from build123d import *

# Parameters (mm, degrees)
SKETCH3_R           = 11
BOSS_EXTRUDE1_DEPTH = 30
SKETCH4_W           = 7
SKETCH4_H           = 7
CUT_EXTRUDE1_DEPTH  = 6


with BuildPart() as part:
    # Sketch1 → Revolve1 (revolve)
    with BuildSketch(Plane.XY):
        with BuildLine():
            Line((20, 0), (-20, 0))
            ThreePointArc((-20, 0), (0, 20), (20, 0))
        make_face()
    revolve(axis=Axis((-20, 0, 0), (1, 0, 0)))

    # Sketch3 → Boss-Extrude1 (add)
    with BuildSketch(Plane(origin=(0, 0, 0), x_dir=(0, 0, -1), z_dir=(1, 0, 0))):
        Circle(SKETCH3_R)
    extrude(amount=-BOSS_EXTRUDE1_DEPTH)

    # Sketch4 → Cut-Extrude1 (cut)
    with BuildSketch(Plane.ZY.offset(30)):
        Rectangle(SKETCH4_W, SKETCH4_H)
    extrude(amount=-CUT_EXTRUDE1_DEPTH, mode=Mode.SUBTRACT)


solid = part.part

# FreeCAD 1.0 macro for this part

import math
import FreeCAD as App
import Part
import Sketcher

V = App.Vector


def add_polygon(sketch, points):
    """Adds a closed chain of lines whose ends are joined by coincident constraints."""
    first, n = sketch.GeometryCount, len(points)
    for a, b in zip(points, points[1:] + points[:1]):
        sketch.addGeometry(Part.LineSegment(App.Vector(*a, 0), App.Vector(*b, 0)), False)
    for i in range(n):
        sketch.addConstraint(Sketcher.Constraint("Coincident", first + i, 2, first + (i + 1) % n, 1))

doc = App.newDocument("Part")
params = doc.addObject("Spreadsheet::Sheet", "Params")
for row, (alias, value) in enumerate([
    ("sketch1_radius", "20 mm"),
    ("revolution_angle", "360 deg"),
    ("sketch2_diameter", "22 mm"),
    ("pad1_length", "30 mm"),
    ("sketch3_width", "7 mm"),
    ("pocket1_length", "6 mm"),
], start=1):
    params.set(f"A{row}", alias)
    params.set(f"B{row}", "=" + value)
    params.setAlias(f"B{row}", alias)

body = doc.addObject("PartDesign::Body", "Body")

# Sketch on XY plane
sketch1 = body.newObject("Sketcher::SketchObject", "Sketch")
sketch1.AttachmentSupport = (doc.getObject("XY_Plane"), [""])
sketch1.MapMode = "FlatFace"
sketch1.addGeometry([
    Part.LineSegment(V(-20, 0, 0), V(20, 0, 0)),
    Part.ArcOfCircle(Part.Circle(V(0, 0, 0), V(0, 0, 1), 20), math.radians(0), math.radians(180)),
], False)
sketch1.addConstraint([
    Sketcher.Constraint("Coincident", 0, 1, 1, 2),
    Sketcher.Constraint("Coincident", 1, 1, 0, 2),
    Sketcher.Constraint("Horizontal", 0),
    Sketcher.Constraint("Coincident", 1, 3, -1, 1),
    Sketcher.Constraint("PointOnObject", 0, 1, -1),
    Sketcher.Constraint("Radius", 1, 20.0),
])
sketch1.setExpression("Constraints[5]", "Params.sketch1_radius")
revolution = body.newObject("PartDesign::Revolution", "Revolution")
revolution.Profile = sketch1
revolution.ReferenceAxis = (sketch1, ["H_Axis"])
revolution.setExpression("Angle", "Params.revolution_angle")

# Sketch on YZ plane
sketch2 = body.newObject("Sketcher::SketchObject", "Sketch001")
sketch2.AttachmentSupport = (doc.getObject("YZ_Plane"), [""])
sketch2.MapMode = "FlatFace"
sketch2.addGeometry(Part.Circle(V(0, 0, 0), V(0, 0, 1), 11), False)
sketch2.addConstraint([
    Sketcher.Constraint("Coincident", 0, 3, -1, 1),
    Sketcher.Constraint("Diameter", 0, 22.0),
])
sketch2.setExpression("Constraints[1]", "Params.sketch2_diameter")
pad1 = body.newObject("PartDesign::Pad", "Pad")
pad1.Profile = sketch2
pad1.setExpression("Length", "Params.pad1_length")
pad1.Reversed = True

# Sketch on YZ plane
sketch3 = body.newObject("Sketcher::SketchObject", "Sketch002")
sketch3.AttachmentSupport = (doc.getObject("YZ_Plane"), [""])
sketch3.MapMode = "FlatFace"
sketch3.AttachmentOffset = App.Placement(V(0, 0, -30), App.Rotation())
add_polygon(sketch3, [(4, -4), (-4, -4), (-4, 4), (4, 4)])  # lines 0-3
sketch3.addConstraint([
    Sketcher.Constraint("Horizontal", 0),
    Sketcher.Constraint("Vertical", 1),
    Sketcher.Constraint("Horizontal", 2),
    Sketcher.Constraint("Vertical", 3),
    Sketcher.Constraint("Symmetric", 0, 2, 2, 2, -1, 1),
    Sketcher.Constraint("Equal", 2, 1),
    Sketcher.Constraint("DistanceX", 0, 2, 0, 1, 7.0),
])
sketch3.setExpression("Constraints[10]", "Params.sketch3_width")
pocket1 = body.newObject("PartDesign::Pocket", "Pocket")
pocket1.Profile = sketch3
pocket1.setExpression("Length", "Params.pocket1_length")
pocket1.Reversed = True

doc.recompute()
